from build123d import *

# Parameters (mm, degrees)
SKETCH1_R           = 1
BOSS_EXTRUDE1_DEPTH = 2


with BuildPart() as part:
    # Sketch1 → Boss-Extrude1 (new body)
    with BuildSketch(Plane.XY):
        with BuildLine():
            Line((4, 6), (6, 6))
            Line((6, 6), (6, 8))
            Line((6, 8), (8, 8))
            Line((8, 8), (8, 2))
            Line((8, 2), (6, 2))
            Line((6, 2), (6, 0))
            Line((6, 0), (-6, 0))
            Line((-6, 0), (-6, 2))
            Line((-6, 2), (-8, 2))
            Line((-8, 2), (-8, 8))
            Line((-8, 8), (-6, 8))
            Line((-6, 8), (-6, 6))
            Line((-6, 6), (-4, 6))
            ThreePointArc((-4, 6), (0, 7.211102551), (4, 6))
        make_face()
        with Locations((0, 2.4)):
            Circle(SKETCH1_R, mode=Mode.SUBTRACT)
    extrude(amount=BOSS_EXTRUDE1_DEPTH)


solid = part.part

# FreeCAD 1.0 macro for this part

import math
import FreeCAD as App
import Part
import Sketcher
from FreeCAD import Vector

doc = App.newDocument("Part")
params = doc.addObject("Spreadsheet::Sheet", "Params")
for row, (alias, value) in enumerate([
    ("sketch1_diameter", "2 mm"),
    ("sketch1_width", "2 mm"),
    ("sketch1_width2", "12 mm"),
    ("sketch1_height", "6 mm"),
    ("pad1_length", "2 mm"),
], start=1):
    params.set(f"A{row}", alias)
    params.set(f"B{row}", "=" + value)
    params.setAlias(f"B{row}", alias)

body = doc.addObject("PartDesign::Body", "Body")

# Sketch on XY plane
sketch1 = body.newObject("Sketcher::SketchObject", "Sketch")
sketch1.AttachmentSupport = (doc.getObject("XY_Plane"), [""])
sketch1.MapMode = "FlatFace"
sketch1.addGeometry(Part.LineSegment(Vector(6, 6, 0), Vector(4, 6, 0)), False)
sketch1.addGeometry(Part.ArcOfCircle(Part.Circle(Vector(0, 0, 0), Vector(0, 0, 1), 7.2), math.radians(56), math.radians(124)), False)
sketch1.addGeometry(Part.LineSegment(Vector(-4, 6, 0), Vector(-6, 6, 0)), False)
sketch1.addGeometry(Part.LineSegment(Vector(-6, 6, 0), Vector(-6, 8, 0)), False)
sketch1.addGeometry(Part.LineSegment(Vector(-6, 8, 0), Vector(-8, 8, 0)), False)
sketch1.addGeometry(Part.LineSegment(Vector(-8, 8, 0), Vector(-8, 2, 0)), False)
sketch1.addGeometry(Part.LineSegment(Vector(-8, 2, 0), Vector(-6, 2, 0)), False)
sketch1.addGeometry(Part.LineSegment(Vector(-6, 2, 0), Vector(-6, 0, 0)), False)
sketch1.addGeometry(Part.LineSegment(Vector(-6, 0, 0), Vector(6, 0, 0)), False)
sketch1.addGeometry(Part.LineSegment(Vector(6, 0, 0), Vector(6, 2, 0)), False)
sketch1.addGeometry(Part.LineSegment(Vector(6, 2, 0), Vector(8, 2, 0)), False)
sketch1.addGeometry(Part.LineSegment(Vector(8, 2, 0), Vector(8, 8, 0)), False)
sketch1.addGeometry(Part.LineSegment(Vector(8, 8, 0), Vector(6, 8, 0)), False)
sketch1.addGeometry(Part.LineSegment(Vector(6, 8, 0), Vector(6, 6, 0)), False)
sketch1.addGeometry(Part.Circle(Vector(0, 2.4, 0), Vector(0, 0, 1), 1), False)
sketch1.addConstraint(Sketcher.Constraint("Coincident", 0, 2, 1, 1))
sketch1.addConstraint(Sketcher.Constraint("Coincident", 1, 2, 2, 1))
sketch1.addConstraint(Sketcher.Constraint("Coincident", 2, 2, 3, 1))
sketch1.addConstraint(Sketcher.Constraint("Coincident", 3, 2, 4, 1))
sketch1.addConstraint(Sketcher.Constraint("Coincident", 4, 2, 5, 1))
sketch1.addConstraint(Sketcher.Constraint("Coincident", 5, 2, 6, 1))
sketch1.addConstraint(Sketcher.Constraint("Coincident", 6, 2, 7, 1))
sketch1.addConstraint(Sketcher.Constraint("Coincident", 7, 2, 8, 1))
sketch1.addConstraint(Sketcher.Constraint("Coincident", 8, 2, 9, 1))
sketch1.addConstraint(Sketcher.Constraint("Coincident", 9, 2, 10, 1))
sketch1.addConstraint(Sketcher.Constraint("Coincident", 10, 2, 11, 1))
sketch1.addConstraint(Sketcher.Constraint("Coincident", 11, 2, 12, 1))
sketch1.addConstraint(Sketcher.Constraint("Coincident", 12, 2, 13, 1))
sketch1.addConstraint(Sketcher.Constraint("Coincident", 13, 2, 0, 1))
sketch1.addConstraint(Sketcher.Constraint("Horizontal", 0))
sketch1.addConstraint(Sketcher.Constraint("Horizontal", 2))
sketch1.addConstraint(Sketcher.Constraint("Vertical", 3))
sketch1.addConstraint(Sketcher.Constraint("Horizontal", 4))
sketch1.addConstraint(Sketcher.Constraint("Vertical", 5))
sketch1.addConstraint(Sketcher.Constraint("Horizontal", 6))
sketch1.addConstraint(Sketcher.Constraint("Vertical", 7))
sketch1.addConstraint(Sketcher.Constraint("Horizontal", 8))
sketch1.addConstraint(Sketcher.Constraint("Vertical", 9))
sketch1.addConstraint(Sketcher.Constraint("Horizontal", 10))
sketch1.addConstraint(Sketcher.Constraint("Vertical", 11))
sketch1.addConstraint(Sketcher.Constraint("Horizontal", 12))
sketch1.addConstraint(Sketcher.Constraint("Vertical", 13))
sketch1.addConstraint(Sketcher.Constraint("Coincident", 1, 3, -1, 1))
sketch1.addConstraint(Sketcher.Constraint("Symmetric", 7, 2, 8, 2, -1, 1))
sketch1.addConstraint(Sketcher.Constraint("Symmetric", 5, 2, 10, 2, -2))
sketch1.addConstraint(Sketcher.Constraint("Symmetric", 3, 2, 12, 2, -2))
sketch1.addConstraint(Sketcher.Constraint("PointOnObject", 14, 3, -2))
sketch1.addConstraint(Sketcher.Constraint("Horizontal", 0, 2, 1, 2))
sketch1.addConstraint(Sketcher.Constraint("Vertical", 3, 2, 6, 2))
sketch1.addConstraint(Sketcher.Constraint("Equal", 2, 4))
sketch1.addConstraint(Sketcher.Constraint("Equal", 12, 3))
sketch1.addConstraint(Sketcher.Constraint("Equal", 3, 7))
sketch1.addConstraint(Sketcher.Constraint("Diameter", 14, 2.0))
sketch1.addConstraint(Sketcher.Constraint("DistanceX", 0, 2, 0, 1, 2.0))
sketch1.addConstraint(Sketcher.Constraint("DistanceX", 8, 1, 8, 2, 12.0))
sketch1.addConstraint(Sketcher.Constraint("DistanceY", 5, 2, 5, 1, 6.0))
sketch1.addConstraint(Sketcher.Constraint("DistanceY", -1, 1, 14, 3, 2.4))
sketch1.setExpression("Constraints[37]", "Params.sketch1_diameter")
sketch1.setExpression("Constraints[38]", "Params.sketch1_width")
sketch1.setExpression("Constraints[39]", "Params.sketch1_width2")
sketch1.setExpression("Constraints[40]", "Params.sketch1_height")
pad1 = body.newObject("PartDesign::Pad", "Pad")
pad1.Profile = sketch1
pad1.setExpression("Length", "Params.pad1_length")

doc.recompute()
